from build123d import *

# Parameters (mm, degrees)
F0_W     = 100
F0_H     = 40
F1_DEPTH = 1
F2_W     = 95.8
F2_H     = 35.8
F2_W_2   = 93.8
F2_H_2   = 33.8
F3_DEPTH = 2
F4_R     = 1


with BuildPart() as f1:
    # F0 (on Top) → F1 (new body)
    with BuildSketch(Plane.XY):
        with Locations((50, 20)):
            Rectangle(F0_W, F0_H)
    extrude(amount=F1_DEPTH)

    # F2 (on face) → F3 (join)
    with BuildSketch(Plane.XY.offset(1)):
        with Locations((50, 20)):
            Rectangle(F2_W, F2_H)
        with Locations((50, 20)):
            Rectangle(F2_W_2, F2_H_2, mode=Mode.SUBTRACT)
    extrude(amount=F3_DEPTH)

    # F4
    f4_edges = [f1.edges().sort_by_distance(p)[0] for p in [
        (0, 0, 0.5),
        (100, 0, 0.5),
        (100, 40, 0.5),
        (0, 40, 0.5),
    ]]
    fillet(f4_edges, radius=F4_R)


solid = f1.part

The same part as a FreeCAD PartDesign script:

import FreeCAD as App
import Part
import Sketcher


def edges_at(feature, points):
    """Names of the edges that pass closest to the given points."""
    edges = feature.Shape.Edges
    near = lambda p: min(range(len(edges)), key=lambda i: edges[i].distToShape(Part.Vertex(*p))[0])
    return sorted({f"Edge{near(p) + 1}" for p in points})


def add_polygon(sketch, points):
    """Adds a closed chain of lines whose ends are joined by coincident constraints."""
    first, n = sketch.GeometryCount, len(points)
    for a, b in zip(points, points[1:] + points[:1]):
        sketch.addGeometry(Part.LineSegment(App.Vector(*a, 0), App.Vector(*b, 0)), False)
    for i in range(n):
        sketch.addConstraint(Sketcher.Constraint("Coincident", first + i, 2, first + (i + 1) % n, 1))

doc = App.newDocument("Part")
params = doc.addObject("Spreadsheet::Sheet", "Params")
for row, (alias, value) in enumerate([
    ("sketch1_width", "100 mm"),
    ("sketch1_height", "40 mm"),
    ("pad1_length", "1 mm"),
    ("sketch2_width", "95.8 mm"),
    ("sketch2_width2", "93.8 mm"),
    ("sketch2_height", "35.8 mm"),
    ("sketch2_height2", "33.8 mm"),
    ("pad2_length", "2 mm"),
    ("fillet_radius", "1 mm"),
], start=1):
    params.set(f"A{row}", alias)
    params.set(f"B{row}", "=" + value)
    params.setAlias(f"B{row}", alias)

body = doc.addObject("PartDesign::Body", "Body")

sketch1 = body.newObject("Sketcher::SketchObject", "Sketch")
sketch1.AttachmentSupport = (doc.getObject("XY_Plane"), [""])
sketch1.MapMode = "FlatFace"
add_polygon(sketch1, [(0, 40), (0, 0), (100, 0), (100, 40)])
sketch1.addConstraint([
    Sketcher.Constraint("Vertical", 0),
    Sketcher.Constraint("Horizontal", 1),
    Sketcher.Constraint("Vertical", 2),
    Sketcher.Constraint("Horizontal", 3),
    Sketcher.Constraint("Coincident", 0, 2, -1, 1),
    Sketcher.Constraint("DistanceX", 1, 1, 1, 2, 100.0),
    Sketcher.Constraint("DistanceY", 0, 2, 0, 1, 40.0),
])
sketch1.setExpression("Constraints[9]", "Params.sketch1_width")
sketch1.setExpression("Constraints[10]", "Params.sketch1_height")
pad1 = body.newObject("PartDesign::Pad", "Pad")
pad1.Profile = sketch1
pad1.setExpression("Length", "Params.pad1_length")

sketch2 = body.newObject("Sketcher::SketchObject", "Sketch001")
sketch2.AttachmentSupport = (doc.getObject("XY_Plane"), [""])
sketch2.MapMode = "FlatFace"
sketch2.AttachmentOffset = App.Placement(App.Vector(0, 0, 1), App.Rotation())
add_polygon(sketch2, [(2.1, 37.9), (2.1, 2.1), (97.9, 2.1), (97.9, 37.9)])
add_polygon(sketch2, [(96.9, 3.1), (3.1, 3.1), (3.1, 36.9), (96.9, 36.9)])
sketch2.addConstraint([
    Sketcher.Constraint("Vertical", 0),
    Sketcher.Constraint("Horizontal", 1),
    Sketcher.Constraint("Vertical", 2),
    Sketcher.Constraint("Horizontal", 3),
    Sketcher.Constraint("Horizontal", 4),
    Sketcher.Constraint("Vertical", 5),
    Sketcher.Constraint("Horizontal", 6),
    Sketcher.Constraint("Vertical", 7),
    Sketcher.Constraint("DistanceX", 1, 1, 1, 2, 95.8),
    Sketcher.Constraint("DistanceX", 4, 2, 4, 1, 93.8),
    Sketcher.Constraint("DistanceY", 0, 2, 0, 1, 35.8),
    Sketcher.Constraint("DistanceY", 5, 1, 5, 2, 33.8),
    Sketcher.Constraint("DistanceX", 0, 2, 4, 2, 1.0),
    Sketcher.Constraint("DistanceY", 0, 2, 4, 2, 1.0),
    Sketcher.Constraint("DistanceX", -1, 1, 0, 2, 2.1),
    Sketcher.Constraint("DistanceY", -1, 1, 0, 2, 2.1),
])
sketch2.setExpression("Constraints[16]", "Params.sketch2_width")
sketch2.setExpression("Constraints[17]", "Params.sketch2_width2")
sketch2.setExpression("Constraints[18]", "Params.sketch2_height")
sketch2.setExpression("Constraints[19]", "Params.sketch2_height2")
pad2 = body.newObject("PartDesign::Pad", "Pad001")
pad2.Profile = sketch2
pad2.setExpression("Length", "Params.pad2_length")
doc.recompute()

fillet = body.newObject("PartDesign::Fillet", "Fillet")
fillet.Base = (pad2, edges_at(pad2, [
    (0, 0, 0.5),
    (100, 0, 0.5),
    (100, 40, 0.5),
    (0, 40, 0.5),
]))
fillet.setExpression("Radius", "Params.fillet_radius")

doc.recompute()
